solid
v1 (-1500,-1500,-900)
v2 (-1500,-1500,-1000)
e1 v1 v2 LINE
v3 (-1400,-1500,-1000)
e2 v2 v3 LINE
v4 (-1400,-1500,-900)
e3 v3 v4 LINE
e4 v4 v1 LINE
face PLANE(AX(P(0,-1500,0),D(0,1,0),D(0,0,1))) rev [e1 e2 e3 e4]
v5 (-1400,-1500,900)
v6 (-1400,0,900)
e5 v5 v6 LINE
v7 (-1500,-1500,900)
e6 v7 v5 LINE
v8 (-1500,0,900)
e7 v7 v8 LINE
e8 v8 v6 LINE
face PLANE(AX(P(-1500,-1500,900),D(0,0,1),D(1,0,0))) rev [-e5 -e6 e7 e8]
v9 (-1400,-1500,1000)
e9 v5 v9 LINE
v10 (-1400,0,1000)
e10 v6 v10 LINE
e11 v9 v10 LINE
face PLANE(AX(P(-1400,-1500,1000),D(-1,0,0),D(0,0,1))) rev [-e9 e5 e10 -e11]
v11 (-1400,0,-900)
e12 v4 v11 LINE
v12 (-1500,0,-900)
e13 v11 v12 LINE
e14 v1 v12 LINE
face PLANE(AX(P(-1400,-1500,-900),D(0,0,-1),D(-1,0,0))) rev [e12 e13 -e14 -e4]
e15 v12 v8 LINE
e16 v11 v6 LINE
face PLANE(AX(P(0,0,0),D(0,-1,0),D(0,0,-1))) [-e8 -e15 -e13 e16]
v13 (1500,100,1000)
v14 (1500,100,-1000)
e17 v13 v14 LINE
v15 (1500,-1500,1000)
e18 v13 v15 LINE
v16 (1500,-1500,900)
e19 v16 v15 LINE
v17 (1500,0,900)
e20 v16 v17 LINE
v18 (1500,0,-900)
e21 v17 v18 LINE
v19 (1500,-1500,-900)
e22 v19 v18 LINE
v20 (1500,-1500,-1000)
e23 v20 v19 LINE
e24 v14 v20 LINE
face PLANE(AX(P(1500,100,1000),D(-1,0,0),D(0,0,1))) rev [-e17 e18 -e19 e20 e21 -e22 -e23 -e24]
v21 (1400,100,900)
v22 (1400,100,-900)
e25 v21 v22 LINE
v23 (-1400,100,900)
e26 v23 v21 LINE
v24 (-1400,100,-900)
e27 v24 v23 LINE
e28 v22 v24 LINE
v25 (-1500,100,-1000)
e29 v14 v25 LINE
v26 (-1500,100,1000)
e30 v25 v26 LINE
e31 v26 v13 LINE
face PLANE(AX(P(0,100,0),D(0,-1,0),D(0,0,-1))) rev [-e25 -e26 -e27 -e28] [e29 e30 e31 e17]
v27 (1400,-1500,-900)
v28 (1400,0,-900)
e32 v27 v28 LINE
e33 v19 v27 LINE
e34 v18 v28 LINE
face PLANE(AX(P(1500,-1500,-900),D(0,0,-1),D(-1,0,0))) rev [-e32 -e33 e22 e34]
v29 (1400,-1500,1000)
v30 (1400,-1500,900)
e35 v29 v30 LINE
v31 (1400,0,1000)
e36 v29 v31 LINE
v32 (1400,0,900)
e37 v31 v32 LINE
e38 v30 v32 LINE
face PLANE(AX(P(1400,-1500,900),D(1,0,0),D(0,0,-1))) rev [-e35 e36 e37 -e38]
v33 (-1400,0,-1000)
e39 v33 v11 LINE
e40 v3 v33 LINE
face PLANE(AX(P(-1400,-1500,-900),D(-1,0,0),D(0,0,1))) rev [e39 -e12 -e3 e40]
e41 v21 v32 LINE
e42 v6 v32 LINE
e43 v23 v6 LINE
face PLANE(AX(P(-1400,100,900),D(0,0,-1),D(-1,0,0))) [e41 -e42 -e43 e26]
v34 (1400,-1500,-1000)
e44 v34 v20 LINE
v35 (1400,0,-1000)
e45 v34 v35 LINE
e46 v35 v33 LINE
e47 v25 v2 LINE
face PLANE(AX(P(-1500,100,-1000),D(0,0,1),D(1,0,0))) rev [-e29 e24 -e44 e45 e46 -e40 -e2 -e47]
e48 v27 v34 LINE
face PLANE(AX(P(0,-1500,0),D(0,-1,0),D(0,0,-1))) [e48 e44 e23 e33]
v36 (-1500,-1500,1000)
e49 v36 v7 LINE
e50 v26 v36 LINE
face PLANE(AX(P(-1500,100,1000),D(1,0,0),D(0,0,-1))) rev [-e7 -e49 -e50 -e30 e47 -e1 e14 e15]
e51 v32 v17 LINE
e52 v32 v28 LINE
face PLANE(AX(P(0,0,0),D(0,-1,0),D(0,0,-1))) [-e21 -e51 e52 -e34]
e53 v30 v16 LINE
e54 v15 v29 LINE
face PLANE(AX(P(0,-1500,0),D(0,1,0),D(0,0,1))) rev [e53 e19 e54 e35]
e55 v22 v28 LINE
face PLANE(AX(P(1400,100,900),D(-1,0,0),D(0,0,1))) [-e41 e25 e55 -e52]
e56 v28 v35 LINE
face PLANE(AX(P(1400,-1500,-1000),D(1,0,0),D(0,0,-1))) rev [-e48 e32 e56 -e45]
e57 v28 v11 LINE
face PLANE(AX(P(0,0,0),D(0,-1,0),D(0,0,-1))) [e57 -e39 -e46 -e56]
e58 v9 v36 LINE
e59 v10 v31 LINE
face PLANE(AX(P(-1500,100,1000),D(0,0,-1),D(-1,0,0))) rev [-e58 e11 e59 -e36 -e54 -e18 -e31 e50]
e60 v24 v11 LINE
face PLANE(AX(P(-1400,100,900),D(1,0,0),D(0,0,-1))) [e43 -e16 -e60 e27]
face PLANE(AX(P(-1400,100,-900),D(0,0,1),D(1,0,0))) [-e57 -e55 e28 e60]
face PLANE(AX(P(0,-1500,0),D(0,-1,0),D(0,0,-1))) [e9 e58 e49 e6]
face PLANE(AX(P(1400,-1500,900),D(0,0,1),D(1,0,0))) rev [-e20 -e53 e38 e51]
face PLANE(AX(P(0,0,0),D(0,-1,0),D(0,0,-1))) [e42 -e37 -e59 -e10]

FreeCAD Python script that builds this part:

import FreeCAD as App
import Part
import Sketcher

V = App.Vector

doc = App.newDocument("Part")
body = doc.addObject("PartDesign::Body", "Body")

sketch1 = body.newObject("Sketcher::SketchObject", "Sketch")
sketch1.AttachmentSupport = (doc.getObject("XZ_Plane"), [""])
sketch1.MapMode = "FlatFace"
sketch1.addGeometry(Part.LineSegment(V(-1500, -1000, 0), V(-1500, 1000, 0)), False)
sketch1.addGeometry(Part.LineSegment(V(-1500, 1000, 0), V(1500, 1000, 0)), False)
sketch1.addGeometry(Part.LineSegment(V(1500, 1000, 0), V(1500, -1000, 0)), False)
sketch1.addGeometry(Part.LineSegment(V(1500, -1000, 0), V(-1500, -1000, 0)), False)
sketch1.addGeometry(Part.LineSegment(V(1400, 900, 0), V(-1400, 900, 0)), False)
sketch1.addGeometry(Part.LineSegment(V(-1400, 900, 0), V(-1400, -900, 0)), False)
sketch1.addGeometry(Part.LineSegment(V(-1400, -900, 0), V(1400, -900, 0)), False)
sketch1.addGeometry(Part.LineSegment(V(1400, -900, 0), V(1400, 900, 0)), False)
sketch1.addConstraint(Sketcher.Constraint("Coincident", 0, 2, 1, 1))
sketch1.addConstraint(Sketcher.Constraint("Coincident", 1, 2, 2, 1))
sketch1.addConstraint(Sketcher.Constraint("Coincident", 2, 2, 3, 1))
sketch1.addConstraint(Sketcher.Constraint("Coincident", 3, 2, 0, 1))
sketch1.addConstraint(Sketcher.Constraint("Coincident", 4, 2, 5, 1))
sketch1.addConstraint(Sketcher.Constraint("Coincident", 5, 2, 6, 1))
sketch1.addConstraint(Sketcher.Constraint("Coincident", 6, 2, 7, 1))
sketch1.addConstraint(Sketcher.Constraint("Coincident", 7, 2, 4, 1))
sketch1.addConstraint(Sketcher.Constraint("Vertical", 0))
sketch1.addConstraint(Sketcher.Constraint("Horizontal", 1))
sketch1.addConstraint(Sketcher.Constraint("Vertical", 2))
sketch1.addConstraint(Sketcher.Constraint("Horizontal", 3))
sketch1.addConstraint(Sketcher.Constraint("Horizontal", 4))
sketch1.addConstraint(Sketcher.Constraint("Vertical", 5))
sketch1.addConstraint(Sketcher.Constraint("Horizontal", 6))
sketch1.addConstraint(Sketcher.Constraint("Vertical", 7))
sketch1.addConstraint(Sketcher.Constraint("Symmetric", 0, 2, 2, 2, -1, 1))
sketch1.addConstraint(Sketcher.Constraint("Symmetric", 4, 2, 6, 2, -1, 1))
sketch1.addConstraint(Sketcher.Constraint("DistanceX", 1, 1, 1, 2, 3000.0))
sketch1.addConstraint(Sketcher.Constraint("DistanceX", 4, 2, 4, 1, 2800.0))
sketch1.addConstraint(Sketcher.Constraint("DistanceY", 0, 1, 0, 2, 2000.0))
sketch1.addConstraint(Sketcher.Constraint("DistanceY", 5, 2, 5, 1, 1800.0))
pad1 = body.newObject("PartDesign::Pad", "Pad")
pad1.Profile = sketch1
pad1.Length = 100
pad1.Reversed = True

sketch2 = body.newObject("Sketcher::SketchObject", "Sketch001")
sketch2.AttachmentSupport = (doc.getObject("XZ_Plane"), [""])
sketch2.MapMode = "FlatFace"
sketch2.addGeometry(Part.LineSegment(V(-1500, 1000, 0), V(-1500, 900, 0)), False)
sketch2.addGeometry(Part.LineSegment(V(-1500, 900, 0), V(-1400, 900, 0)), False)
sketch2.addGeometry(Part.LineSegment(V(-1400, 900, 0), V(-1400, 1000, 0)), False)
sketch2.addGeometry(Part.LineSegment(V(-1400, 1000, 0), V(-1500, 1000, 0)), False)
sketch2.addGeometry(Part.LineSegment(V(-1500, -900, 0), V(-1500, -1000, 0)), False)
sketch2.addGeometry(Part.LineSegment(V(-1500, -1000, 0), V(-1400, -1000, 0)), False)
sketch2.addGeometry(Part.LineSegment(V(-1400, -1000, 0), V(-1400, -900, 0)), False)
sketch2.addGeometry(Part.LineSegment(V(-1400, -900, 0), V(-1500, -900, 0)), False)
sketch2.addGeometry(Part.LineSegment(V(1400, -900, 0), V(1400, -1000, 0)), False)
sketch2.addGeometry(Part.LineSegment(V(1400, -1000, 0), V(1500, -1000, 0)), False)
sketch2.addGeometry(Part.LineSegment(V(1500, -1000, 0), V(1500, -900, 0)), False)
sketch2.addGeometry(Part.LineSegment(V(1500, -900, 0), V(1400, -900, 0)), False)
sketch2.addGeometry(Part.LineSegment(V(1400, 1000, 0), V(1400, 900, 0)), False)
sketch2.addGeometry(Part.LineSegment(V(1400, 900, 0), V(1500, 900, 0)), False)
sketch2.addGeometry(Part.LineSegment(V(1500, 900, 0), V(1500, 1000, 0)), False)
sketch2.addGeometry(Part.LineSegment(V(1500, 1000, 0), V(1400, 1000, 0)), False)
sketch2.addConstraint(Sketcher.Constraint("Coincident", 0, 2, 1, 1))
sketch2.addConstraint(Sketcher.Constraint("Coincident", 1, 2, 2, 1))
sketch2.addConstraint(Sketcher.Constraint("Coincident", 2, 2, 3, 1))
sketch2.addConstraint(Sketcher.Constraint("Coincident", 3, 2, 0, 1))
sketch2.addConstraint(Sketcher.Constraint("Coincident", 4, 2, 5, 1))
sketch2.addConstraint(Sketcher.Constraint("Coincident", 5, 2, 6, 1))
sketch2.addConstraint(Sketcher.Constraint("Coincident", 6, 2, 7, 1))
sketch2.addConstraint(Sketcher.Constraint("Coincident", 7, 2, 4, 1))
sketch2.addConstraint(Sketcher.Constraint("Coincident", 8, 2, 9, 1))
sketch2.addConstraint(Sketcher.Constraint("Coincident", 9, 2, 10, 1))
sketch2.addConstraint(Sketcher.Constraint("Coincident", 10, 2, 11, 1))
sketch2.addConstraint(Sketcher.Constraint("Coincident", 11, 2, 8, 1))
sketch2.addConstraint(Sketcher.Constraint("Coincident", 12, 2, 13, 1))
sketch2.addConstraint(Sketcher.Constraint("Coincident", 13, 2, 14, 1))
sketch2.addConstraint(Sketcher.Constraint("Coincident", 14, 2, 15, 1))
sketch2.addConstraint(Sketcher.Constraint("Coincident", 15, 2, 12, 1))
sketch2.addConstraint(Sketcher.Constraint("Vertical", 0))
sketch2.addConstraint(Sketcher.Constraint("Horizontal", 1))
sketch2.addConstraint(Sketcher.Constraint("Vertical", 2))
sketch2.addConstraint(Sketcher.Constraint("Horizontal", 3))
sketch2.addConstraint(Sketcher.Constraint("Vertical", 4))
sketch2.addConstraint(Sketcher.Constraint("Horizontal", 5))
sketch2.addConstraint(Sketcher.Constraint("Vertical", 6))
sketch2.addConstraint(Sketcher.Constraint("Horizontal", 7))
sketch2.addConstraint(Sketcher.Constraint("Vertical", 8))
sketch2.addConstraint(Sketcher.Constraint("Horizontal", 9))
sketch2.addConstraint(Sketcher.Constraint("Vertical", 10))
sketch2.addConstraint(Sketcher.Constraint("Horizontal", 11))
sketch2.addConstraint(Sketcher.Constraint("Vertical", 12))
sketch2.addConstraint(Sketcher.Constraint("Horizontal", 13))
sketch2.addConstraint(Sketcher.Constraint("Vertical", 14))
sketch2.addConstraint(Sketcher.Constraint("Horizontal", 15))
sketch2.addConstraint(Sketcher.Constraint("Symmetric", 2, 2, 8, 2, -1, 1))
sketch2.addConstraint(Sketcher.Constraint("Symmetric", 0, 2, 10, 2, -1, 1))
sketch2.addConstraint(Sketcher.Constraint("Symmetric", 6, 2, 12, 2, -1, 1))
sketch2.addConstraint(Sketcher.Constraint("Symmetric", 4, 2, 14, 2, -1, 1))
sketch2.addConstraint(Sketcher.Constraint("Symmetric", 5, 2, 8, 2, -2))
sketch2.addConstraint(Sketcher.Constraint("Symmetric", 7, 2, 10, 2, -2))
sketch2.addConstraint(Sketcher.Constraint("Equal", 15, 0))
sketch2.addConstraint(Sketcher.Constraint("DistanceX", 1, 1, 1, 2, 100.0))
sketch2.addConstraint(Sketcher.Constraint("DistanceX", 0, 2, -1, 1, 1500.0))
sketch2.addConstraint(Sketcher.Constraint("DistanceY", -1, 1, 0, 2, 900.0))
pad2 = body.newObject("PartDesign::Pad", "Pad001")
pad2.Profile = sketch2
pad2.Length = 1500

doc.recompute()
